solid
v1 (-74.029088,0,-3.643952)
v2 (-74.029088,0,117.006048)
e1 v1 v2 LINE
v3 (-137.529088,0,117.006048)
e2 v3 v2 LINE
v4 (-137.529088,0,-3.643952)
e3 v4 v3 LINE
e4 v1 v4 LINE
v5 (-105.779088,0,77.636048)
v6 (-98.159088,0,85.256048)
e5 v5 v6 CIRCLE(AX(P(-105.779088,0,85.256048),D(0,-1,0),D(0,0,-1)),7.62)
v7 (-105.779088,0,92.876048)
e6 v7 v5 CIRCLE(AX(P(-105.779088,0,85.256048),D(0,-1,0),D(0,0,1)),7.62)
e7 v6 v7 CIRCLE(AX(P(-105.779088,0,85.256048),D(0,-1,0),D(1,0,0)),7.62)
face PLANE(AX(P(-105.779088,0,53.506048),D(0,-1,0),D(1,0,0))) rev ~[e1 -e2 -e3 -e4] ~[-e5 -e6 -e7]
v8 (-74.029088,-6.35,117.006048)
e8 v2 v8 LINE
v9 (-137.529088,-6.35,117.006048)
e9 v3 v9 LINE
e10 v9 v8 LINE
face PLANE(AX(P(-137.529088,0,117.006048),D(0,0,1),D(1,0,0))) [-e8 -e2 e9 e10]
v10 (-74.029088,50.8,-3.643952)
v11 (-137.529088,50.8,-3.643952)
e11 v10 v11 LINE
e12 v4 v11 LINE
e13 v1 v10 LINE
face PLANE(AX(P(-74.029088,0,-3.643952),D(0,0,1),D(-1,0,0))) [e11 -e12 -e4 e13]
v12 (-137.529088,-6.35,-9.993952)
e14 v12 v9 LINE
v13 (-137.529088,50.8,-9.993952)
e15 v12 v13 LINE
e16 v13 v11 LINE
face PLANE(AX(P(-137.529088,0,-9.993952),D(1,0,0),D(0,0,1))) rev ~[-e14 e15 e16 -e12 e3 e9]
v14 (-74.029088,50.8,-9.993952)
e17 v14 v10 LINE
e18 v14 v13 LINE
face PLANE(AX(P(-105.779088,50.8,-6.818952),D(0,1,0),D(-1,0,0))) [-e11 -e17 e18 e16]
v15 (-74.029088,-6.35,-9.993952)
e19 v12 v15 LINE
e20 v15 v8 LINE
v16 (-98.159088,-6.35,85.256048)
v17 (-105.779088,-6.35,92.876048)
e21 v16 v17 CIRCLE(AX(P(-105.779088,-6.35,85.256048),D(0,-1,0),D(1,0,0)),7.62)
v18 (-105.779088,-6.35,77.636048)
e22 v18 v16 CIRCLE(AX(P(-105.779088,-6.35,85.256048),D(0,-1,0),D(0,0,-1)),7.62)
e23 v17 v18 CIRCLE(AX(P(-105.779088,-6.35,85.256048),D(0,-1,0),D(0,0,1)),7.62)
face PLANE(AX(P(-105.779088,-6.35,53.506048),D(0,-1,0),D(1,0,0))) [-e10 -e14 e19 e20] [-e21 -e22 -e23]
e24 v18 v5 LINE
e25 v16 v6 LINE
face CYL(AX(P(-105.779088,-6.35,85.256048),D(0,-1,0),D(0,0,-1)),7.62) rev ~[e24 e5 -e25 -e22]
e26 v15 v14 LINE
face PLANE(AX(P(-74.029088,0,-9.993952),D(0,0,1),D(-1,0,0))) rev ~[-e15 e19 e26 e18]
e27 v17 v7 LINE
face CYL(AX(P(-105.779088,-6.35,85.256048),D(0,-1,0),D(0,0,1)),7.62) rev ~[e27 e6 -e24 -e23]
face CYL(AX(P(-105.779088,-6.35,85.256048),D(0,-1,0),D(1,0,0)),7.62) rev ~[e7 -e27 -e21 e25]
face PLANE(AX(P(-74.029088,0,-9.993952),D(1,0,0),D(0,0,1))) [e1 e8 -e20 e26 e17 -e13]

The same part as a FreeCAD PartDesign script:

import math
import FreeCAD as App
import Part
import Sketcher
Q = App.Units.Quantity


def add_polygon(sketch, points):
    """Adds a closed chain of lines whose ends are joined by coincident constraints."""
    first, n = sketch.GeometryCount, len(points)
    for a, b in zip(points, points[1:] + points[:1]):
        sketch.addGeometry(Part.LineSegment(App.Vector(*a, 0), App.Vector(*b, 0)), False)
    for i in range(n):
        sketch.addConstraint(Sketcher.Constraint("Coincident", first + i, 2, first + (i + 1) % n, 1))

doc = App.newDocument("Part")
body = doc.addObject("PartDesign::Body", "Body")

# Sketch on XZ plane
sketch1 = body.newObject("Sketcher::SketchObject", "Sketch")
sketch1.AttachmentSupport = (doc.getObject("XZ_Plane"), [""])
sketch1.MapMode = "FlatFace"
add_polygon(sketch1, [(-138, 117), (-138, -10), (-74, -10), (-74, 117)])  # lines 0-3
sketch1.addConstraint(Sketcher.Constraint("Vertical", 0))
sketch1.addConstraint(Sketcher.Constraint("Horizontal", 1))
sketch1.addConstraint(Sketcher.Constraint("Vertical", 2))
sketch1.addConstraint(Sketcher.Constraint("Horizontal", 3))
sketch1.addConstraint(Sketcher.Constraint("DistanceY", 0, 2, 0, 1, Q("5 in")))
sketch1.addConstraint(Sketcher.Constraint("DistanceX", 1, 1, 1, 2, Q("2.5 in")))
sketch1.addConstraint(Sketcher.Constraint("DistanceX", 0, 2, -1, 1, Q("137.529088 mm")))
sketch1.addConstraint(Sketcher.Constraint("DistanceY", 0, 2, -1, 1, Q("9.993952 mm")))
pad1 = body.newObject("PartDesign::Pad", "Pad")
pad1.Profile = sketch1
pad1.Length = Q("0.25 in")

# Sketch on XZ plane
sketch2 = body.newObject("Sketcher::SketchObject", "Sketch001")
sketch2.AttachmentSupport = (doc.getObject("XZ_Plane"), [""])
sketch2.MapMode = "FlatFace"
add_polygon(sketch2, [(-74, -4), (-74, -10), (-138, -10), (-138, -4)])  # lines 0-3
sketch2.addConstraint(Sketcher.Constraint("Vertical", 0))
sketch2.addConstraint(Sketcher.Constraint("Horizontal", 1))
sketch2.addConstraint(Sketcher.Constraint("Vertical", 2))
sketch2.addConstraint(Sketcher.Constraint("Horizontal", 3))
sketch2.addConstraint(Sketcher.Constraint("DistanceX", 1, 2, 1, 1, Q("2.5 in")))
sketch2.addConstraint(Sketcher.Constraint("DistanceY", 0, 2, 0, 1, Q("0.25 in")))
sketch2.addConstraint(Sketcher.Constraint("DistanceX", 0, 2, -1, 1, Q("74.029088 mm")))
sketch2.addConstraint(Sketcher.Constraint("DistanceY", 0, 2, -1, 1, Q("9.993952 mm")))
pad2 = body.newObject("PartDesign::Pad", "Pad001")
pad2.Profile = sketch2
pad2.Length = Q("2 in")
pad2.Reversed = True

# Sketch on XZ plane
sketch3 = body.newObject("Sketcher::SketchObject", "Sketch002")
sketch3.AttachmentSupport = (doc.getObject("XZ_Plane"), [""])
sketch3.MapMode = "FlatFace"
sketch3.AttachmentOffset = App.Placement(App.Vector(0, 0, 0.25 * 25.4), App.Rotation())
sketch3.addGeometry(Part.ArcOfCircle(Part.Circle(App.Vector(-106, 85, 0), App.Vector(0, 0, 1), 8), math.radians(90), math.radians(270)), False)
sketch3.addGeometry(Part.ArcOfCircle(Part.Circle(App.Vector(-106, 85, 0), App.Vector(0, 0, 1), 8), math.radians(-90), math.radians(0)), False)
sketch3.addGeometry(Part.ArcOfCircle(Part.Circle(App.Vector(-106, 85, 0), App.Vector(0, 0, 1), 8), math.radians(0), math.radians(90)), False)
sketch3.addConstraint(Sketcher.Constraint("Tangent", 0, 2, 1, 1))
sketch3.addConstraint(Sketcher.Constraint("Tangent", 1, 2, 2, 1))
sketch3.addConstraint(Sketcher.Constraint("Tangent", 2, 2, 0, 1))
sketch3.addConstraint(Sketcher.Constraint("Horizontal", 2, 3, 1, 2))
sketch3.addConstraint(Sketcher.Constraint("Vertical", 2, 3, 0, 2))
sketch3.addConstraint(Sketcher.Constraint("Vertical", 0, 2, 2, 2))
sketch3.addConstraint(Sketcher.Constraint("Radius", 0, Q("0.3 in")))
sketch3.addConstraint(Sketcher.Constraint("DistanceX", 0, 3, -1, 1, Q("105.779088 mm")))
sketch3.addConstraint(Sketcher.Constraint("DistanceY", -1, 1, 0, 3, Q("85.256048 mm")))
pocket1 = body.newObject("PartDesign::Pocket", "Pocket")
pocket1.Profile = sketch3
pocket1.Length = Q("1 in")

doc.recompute()
